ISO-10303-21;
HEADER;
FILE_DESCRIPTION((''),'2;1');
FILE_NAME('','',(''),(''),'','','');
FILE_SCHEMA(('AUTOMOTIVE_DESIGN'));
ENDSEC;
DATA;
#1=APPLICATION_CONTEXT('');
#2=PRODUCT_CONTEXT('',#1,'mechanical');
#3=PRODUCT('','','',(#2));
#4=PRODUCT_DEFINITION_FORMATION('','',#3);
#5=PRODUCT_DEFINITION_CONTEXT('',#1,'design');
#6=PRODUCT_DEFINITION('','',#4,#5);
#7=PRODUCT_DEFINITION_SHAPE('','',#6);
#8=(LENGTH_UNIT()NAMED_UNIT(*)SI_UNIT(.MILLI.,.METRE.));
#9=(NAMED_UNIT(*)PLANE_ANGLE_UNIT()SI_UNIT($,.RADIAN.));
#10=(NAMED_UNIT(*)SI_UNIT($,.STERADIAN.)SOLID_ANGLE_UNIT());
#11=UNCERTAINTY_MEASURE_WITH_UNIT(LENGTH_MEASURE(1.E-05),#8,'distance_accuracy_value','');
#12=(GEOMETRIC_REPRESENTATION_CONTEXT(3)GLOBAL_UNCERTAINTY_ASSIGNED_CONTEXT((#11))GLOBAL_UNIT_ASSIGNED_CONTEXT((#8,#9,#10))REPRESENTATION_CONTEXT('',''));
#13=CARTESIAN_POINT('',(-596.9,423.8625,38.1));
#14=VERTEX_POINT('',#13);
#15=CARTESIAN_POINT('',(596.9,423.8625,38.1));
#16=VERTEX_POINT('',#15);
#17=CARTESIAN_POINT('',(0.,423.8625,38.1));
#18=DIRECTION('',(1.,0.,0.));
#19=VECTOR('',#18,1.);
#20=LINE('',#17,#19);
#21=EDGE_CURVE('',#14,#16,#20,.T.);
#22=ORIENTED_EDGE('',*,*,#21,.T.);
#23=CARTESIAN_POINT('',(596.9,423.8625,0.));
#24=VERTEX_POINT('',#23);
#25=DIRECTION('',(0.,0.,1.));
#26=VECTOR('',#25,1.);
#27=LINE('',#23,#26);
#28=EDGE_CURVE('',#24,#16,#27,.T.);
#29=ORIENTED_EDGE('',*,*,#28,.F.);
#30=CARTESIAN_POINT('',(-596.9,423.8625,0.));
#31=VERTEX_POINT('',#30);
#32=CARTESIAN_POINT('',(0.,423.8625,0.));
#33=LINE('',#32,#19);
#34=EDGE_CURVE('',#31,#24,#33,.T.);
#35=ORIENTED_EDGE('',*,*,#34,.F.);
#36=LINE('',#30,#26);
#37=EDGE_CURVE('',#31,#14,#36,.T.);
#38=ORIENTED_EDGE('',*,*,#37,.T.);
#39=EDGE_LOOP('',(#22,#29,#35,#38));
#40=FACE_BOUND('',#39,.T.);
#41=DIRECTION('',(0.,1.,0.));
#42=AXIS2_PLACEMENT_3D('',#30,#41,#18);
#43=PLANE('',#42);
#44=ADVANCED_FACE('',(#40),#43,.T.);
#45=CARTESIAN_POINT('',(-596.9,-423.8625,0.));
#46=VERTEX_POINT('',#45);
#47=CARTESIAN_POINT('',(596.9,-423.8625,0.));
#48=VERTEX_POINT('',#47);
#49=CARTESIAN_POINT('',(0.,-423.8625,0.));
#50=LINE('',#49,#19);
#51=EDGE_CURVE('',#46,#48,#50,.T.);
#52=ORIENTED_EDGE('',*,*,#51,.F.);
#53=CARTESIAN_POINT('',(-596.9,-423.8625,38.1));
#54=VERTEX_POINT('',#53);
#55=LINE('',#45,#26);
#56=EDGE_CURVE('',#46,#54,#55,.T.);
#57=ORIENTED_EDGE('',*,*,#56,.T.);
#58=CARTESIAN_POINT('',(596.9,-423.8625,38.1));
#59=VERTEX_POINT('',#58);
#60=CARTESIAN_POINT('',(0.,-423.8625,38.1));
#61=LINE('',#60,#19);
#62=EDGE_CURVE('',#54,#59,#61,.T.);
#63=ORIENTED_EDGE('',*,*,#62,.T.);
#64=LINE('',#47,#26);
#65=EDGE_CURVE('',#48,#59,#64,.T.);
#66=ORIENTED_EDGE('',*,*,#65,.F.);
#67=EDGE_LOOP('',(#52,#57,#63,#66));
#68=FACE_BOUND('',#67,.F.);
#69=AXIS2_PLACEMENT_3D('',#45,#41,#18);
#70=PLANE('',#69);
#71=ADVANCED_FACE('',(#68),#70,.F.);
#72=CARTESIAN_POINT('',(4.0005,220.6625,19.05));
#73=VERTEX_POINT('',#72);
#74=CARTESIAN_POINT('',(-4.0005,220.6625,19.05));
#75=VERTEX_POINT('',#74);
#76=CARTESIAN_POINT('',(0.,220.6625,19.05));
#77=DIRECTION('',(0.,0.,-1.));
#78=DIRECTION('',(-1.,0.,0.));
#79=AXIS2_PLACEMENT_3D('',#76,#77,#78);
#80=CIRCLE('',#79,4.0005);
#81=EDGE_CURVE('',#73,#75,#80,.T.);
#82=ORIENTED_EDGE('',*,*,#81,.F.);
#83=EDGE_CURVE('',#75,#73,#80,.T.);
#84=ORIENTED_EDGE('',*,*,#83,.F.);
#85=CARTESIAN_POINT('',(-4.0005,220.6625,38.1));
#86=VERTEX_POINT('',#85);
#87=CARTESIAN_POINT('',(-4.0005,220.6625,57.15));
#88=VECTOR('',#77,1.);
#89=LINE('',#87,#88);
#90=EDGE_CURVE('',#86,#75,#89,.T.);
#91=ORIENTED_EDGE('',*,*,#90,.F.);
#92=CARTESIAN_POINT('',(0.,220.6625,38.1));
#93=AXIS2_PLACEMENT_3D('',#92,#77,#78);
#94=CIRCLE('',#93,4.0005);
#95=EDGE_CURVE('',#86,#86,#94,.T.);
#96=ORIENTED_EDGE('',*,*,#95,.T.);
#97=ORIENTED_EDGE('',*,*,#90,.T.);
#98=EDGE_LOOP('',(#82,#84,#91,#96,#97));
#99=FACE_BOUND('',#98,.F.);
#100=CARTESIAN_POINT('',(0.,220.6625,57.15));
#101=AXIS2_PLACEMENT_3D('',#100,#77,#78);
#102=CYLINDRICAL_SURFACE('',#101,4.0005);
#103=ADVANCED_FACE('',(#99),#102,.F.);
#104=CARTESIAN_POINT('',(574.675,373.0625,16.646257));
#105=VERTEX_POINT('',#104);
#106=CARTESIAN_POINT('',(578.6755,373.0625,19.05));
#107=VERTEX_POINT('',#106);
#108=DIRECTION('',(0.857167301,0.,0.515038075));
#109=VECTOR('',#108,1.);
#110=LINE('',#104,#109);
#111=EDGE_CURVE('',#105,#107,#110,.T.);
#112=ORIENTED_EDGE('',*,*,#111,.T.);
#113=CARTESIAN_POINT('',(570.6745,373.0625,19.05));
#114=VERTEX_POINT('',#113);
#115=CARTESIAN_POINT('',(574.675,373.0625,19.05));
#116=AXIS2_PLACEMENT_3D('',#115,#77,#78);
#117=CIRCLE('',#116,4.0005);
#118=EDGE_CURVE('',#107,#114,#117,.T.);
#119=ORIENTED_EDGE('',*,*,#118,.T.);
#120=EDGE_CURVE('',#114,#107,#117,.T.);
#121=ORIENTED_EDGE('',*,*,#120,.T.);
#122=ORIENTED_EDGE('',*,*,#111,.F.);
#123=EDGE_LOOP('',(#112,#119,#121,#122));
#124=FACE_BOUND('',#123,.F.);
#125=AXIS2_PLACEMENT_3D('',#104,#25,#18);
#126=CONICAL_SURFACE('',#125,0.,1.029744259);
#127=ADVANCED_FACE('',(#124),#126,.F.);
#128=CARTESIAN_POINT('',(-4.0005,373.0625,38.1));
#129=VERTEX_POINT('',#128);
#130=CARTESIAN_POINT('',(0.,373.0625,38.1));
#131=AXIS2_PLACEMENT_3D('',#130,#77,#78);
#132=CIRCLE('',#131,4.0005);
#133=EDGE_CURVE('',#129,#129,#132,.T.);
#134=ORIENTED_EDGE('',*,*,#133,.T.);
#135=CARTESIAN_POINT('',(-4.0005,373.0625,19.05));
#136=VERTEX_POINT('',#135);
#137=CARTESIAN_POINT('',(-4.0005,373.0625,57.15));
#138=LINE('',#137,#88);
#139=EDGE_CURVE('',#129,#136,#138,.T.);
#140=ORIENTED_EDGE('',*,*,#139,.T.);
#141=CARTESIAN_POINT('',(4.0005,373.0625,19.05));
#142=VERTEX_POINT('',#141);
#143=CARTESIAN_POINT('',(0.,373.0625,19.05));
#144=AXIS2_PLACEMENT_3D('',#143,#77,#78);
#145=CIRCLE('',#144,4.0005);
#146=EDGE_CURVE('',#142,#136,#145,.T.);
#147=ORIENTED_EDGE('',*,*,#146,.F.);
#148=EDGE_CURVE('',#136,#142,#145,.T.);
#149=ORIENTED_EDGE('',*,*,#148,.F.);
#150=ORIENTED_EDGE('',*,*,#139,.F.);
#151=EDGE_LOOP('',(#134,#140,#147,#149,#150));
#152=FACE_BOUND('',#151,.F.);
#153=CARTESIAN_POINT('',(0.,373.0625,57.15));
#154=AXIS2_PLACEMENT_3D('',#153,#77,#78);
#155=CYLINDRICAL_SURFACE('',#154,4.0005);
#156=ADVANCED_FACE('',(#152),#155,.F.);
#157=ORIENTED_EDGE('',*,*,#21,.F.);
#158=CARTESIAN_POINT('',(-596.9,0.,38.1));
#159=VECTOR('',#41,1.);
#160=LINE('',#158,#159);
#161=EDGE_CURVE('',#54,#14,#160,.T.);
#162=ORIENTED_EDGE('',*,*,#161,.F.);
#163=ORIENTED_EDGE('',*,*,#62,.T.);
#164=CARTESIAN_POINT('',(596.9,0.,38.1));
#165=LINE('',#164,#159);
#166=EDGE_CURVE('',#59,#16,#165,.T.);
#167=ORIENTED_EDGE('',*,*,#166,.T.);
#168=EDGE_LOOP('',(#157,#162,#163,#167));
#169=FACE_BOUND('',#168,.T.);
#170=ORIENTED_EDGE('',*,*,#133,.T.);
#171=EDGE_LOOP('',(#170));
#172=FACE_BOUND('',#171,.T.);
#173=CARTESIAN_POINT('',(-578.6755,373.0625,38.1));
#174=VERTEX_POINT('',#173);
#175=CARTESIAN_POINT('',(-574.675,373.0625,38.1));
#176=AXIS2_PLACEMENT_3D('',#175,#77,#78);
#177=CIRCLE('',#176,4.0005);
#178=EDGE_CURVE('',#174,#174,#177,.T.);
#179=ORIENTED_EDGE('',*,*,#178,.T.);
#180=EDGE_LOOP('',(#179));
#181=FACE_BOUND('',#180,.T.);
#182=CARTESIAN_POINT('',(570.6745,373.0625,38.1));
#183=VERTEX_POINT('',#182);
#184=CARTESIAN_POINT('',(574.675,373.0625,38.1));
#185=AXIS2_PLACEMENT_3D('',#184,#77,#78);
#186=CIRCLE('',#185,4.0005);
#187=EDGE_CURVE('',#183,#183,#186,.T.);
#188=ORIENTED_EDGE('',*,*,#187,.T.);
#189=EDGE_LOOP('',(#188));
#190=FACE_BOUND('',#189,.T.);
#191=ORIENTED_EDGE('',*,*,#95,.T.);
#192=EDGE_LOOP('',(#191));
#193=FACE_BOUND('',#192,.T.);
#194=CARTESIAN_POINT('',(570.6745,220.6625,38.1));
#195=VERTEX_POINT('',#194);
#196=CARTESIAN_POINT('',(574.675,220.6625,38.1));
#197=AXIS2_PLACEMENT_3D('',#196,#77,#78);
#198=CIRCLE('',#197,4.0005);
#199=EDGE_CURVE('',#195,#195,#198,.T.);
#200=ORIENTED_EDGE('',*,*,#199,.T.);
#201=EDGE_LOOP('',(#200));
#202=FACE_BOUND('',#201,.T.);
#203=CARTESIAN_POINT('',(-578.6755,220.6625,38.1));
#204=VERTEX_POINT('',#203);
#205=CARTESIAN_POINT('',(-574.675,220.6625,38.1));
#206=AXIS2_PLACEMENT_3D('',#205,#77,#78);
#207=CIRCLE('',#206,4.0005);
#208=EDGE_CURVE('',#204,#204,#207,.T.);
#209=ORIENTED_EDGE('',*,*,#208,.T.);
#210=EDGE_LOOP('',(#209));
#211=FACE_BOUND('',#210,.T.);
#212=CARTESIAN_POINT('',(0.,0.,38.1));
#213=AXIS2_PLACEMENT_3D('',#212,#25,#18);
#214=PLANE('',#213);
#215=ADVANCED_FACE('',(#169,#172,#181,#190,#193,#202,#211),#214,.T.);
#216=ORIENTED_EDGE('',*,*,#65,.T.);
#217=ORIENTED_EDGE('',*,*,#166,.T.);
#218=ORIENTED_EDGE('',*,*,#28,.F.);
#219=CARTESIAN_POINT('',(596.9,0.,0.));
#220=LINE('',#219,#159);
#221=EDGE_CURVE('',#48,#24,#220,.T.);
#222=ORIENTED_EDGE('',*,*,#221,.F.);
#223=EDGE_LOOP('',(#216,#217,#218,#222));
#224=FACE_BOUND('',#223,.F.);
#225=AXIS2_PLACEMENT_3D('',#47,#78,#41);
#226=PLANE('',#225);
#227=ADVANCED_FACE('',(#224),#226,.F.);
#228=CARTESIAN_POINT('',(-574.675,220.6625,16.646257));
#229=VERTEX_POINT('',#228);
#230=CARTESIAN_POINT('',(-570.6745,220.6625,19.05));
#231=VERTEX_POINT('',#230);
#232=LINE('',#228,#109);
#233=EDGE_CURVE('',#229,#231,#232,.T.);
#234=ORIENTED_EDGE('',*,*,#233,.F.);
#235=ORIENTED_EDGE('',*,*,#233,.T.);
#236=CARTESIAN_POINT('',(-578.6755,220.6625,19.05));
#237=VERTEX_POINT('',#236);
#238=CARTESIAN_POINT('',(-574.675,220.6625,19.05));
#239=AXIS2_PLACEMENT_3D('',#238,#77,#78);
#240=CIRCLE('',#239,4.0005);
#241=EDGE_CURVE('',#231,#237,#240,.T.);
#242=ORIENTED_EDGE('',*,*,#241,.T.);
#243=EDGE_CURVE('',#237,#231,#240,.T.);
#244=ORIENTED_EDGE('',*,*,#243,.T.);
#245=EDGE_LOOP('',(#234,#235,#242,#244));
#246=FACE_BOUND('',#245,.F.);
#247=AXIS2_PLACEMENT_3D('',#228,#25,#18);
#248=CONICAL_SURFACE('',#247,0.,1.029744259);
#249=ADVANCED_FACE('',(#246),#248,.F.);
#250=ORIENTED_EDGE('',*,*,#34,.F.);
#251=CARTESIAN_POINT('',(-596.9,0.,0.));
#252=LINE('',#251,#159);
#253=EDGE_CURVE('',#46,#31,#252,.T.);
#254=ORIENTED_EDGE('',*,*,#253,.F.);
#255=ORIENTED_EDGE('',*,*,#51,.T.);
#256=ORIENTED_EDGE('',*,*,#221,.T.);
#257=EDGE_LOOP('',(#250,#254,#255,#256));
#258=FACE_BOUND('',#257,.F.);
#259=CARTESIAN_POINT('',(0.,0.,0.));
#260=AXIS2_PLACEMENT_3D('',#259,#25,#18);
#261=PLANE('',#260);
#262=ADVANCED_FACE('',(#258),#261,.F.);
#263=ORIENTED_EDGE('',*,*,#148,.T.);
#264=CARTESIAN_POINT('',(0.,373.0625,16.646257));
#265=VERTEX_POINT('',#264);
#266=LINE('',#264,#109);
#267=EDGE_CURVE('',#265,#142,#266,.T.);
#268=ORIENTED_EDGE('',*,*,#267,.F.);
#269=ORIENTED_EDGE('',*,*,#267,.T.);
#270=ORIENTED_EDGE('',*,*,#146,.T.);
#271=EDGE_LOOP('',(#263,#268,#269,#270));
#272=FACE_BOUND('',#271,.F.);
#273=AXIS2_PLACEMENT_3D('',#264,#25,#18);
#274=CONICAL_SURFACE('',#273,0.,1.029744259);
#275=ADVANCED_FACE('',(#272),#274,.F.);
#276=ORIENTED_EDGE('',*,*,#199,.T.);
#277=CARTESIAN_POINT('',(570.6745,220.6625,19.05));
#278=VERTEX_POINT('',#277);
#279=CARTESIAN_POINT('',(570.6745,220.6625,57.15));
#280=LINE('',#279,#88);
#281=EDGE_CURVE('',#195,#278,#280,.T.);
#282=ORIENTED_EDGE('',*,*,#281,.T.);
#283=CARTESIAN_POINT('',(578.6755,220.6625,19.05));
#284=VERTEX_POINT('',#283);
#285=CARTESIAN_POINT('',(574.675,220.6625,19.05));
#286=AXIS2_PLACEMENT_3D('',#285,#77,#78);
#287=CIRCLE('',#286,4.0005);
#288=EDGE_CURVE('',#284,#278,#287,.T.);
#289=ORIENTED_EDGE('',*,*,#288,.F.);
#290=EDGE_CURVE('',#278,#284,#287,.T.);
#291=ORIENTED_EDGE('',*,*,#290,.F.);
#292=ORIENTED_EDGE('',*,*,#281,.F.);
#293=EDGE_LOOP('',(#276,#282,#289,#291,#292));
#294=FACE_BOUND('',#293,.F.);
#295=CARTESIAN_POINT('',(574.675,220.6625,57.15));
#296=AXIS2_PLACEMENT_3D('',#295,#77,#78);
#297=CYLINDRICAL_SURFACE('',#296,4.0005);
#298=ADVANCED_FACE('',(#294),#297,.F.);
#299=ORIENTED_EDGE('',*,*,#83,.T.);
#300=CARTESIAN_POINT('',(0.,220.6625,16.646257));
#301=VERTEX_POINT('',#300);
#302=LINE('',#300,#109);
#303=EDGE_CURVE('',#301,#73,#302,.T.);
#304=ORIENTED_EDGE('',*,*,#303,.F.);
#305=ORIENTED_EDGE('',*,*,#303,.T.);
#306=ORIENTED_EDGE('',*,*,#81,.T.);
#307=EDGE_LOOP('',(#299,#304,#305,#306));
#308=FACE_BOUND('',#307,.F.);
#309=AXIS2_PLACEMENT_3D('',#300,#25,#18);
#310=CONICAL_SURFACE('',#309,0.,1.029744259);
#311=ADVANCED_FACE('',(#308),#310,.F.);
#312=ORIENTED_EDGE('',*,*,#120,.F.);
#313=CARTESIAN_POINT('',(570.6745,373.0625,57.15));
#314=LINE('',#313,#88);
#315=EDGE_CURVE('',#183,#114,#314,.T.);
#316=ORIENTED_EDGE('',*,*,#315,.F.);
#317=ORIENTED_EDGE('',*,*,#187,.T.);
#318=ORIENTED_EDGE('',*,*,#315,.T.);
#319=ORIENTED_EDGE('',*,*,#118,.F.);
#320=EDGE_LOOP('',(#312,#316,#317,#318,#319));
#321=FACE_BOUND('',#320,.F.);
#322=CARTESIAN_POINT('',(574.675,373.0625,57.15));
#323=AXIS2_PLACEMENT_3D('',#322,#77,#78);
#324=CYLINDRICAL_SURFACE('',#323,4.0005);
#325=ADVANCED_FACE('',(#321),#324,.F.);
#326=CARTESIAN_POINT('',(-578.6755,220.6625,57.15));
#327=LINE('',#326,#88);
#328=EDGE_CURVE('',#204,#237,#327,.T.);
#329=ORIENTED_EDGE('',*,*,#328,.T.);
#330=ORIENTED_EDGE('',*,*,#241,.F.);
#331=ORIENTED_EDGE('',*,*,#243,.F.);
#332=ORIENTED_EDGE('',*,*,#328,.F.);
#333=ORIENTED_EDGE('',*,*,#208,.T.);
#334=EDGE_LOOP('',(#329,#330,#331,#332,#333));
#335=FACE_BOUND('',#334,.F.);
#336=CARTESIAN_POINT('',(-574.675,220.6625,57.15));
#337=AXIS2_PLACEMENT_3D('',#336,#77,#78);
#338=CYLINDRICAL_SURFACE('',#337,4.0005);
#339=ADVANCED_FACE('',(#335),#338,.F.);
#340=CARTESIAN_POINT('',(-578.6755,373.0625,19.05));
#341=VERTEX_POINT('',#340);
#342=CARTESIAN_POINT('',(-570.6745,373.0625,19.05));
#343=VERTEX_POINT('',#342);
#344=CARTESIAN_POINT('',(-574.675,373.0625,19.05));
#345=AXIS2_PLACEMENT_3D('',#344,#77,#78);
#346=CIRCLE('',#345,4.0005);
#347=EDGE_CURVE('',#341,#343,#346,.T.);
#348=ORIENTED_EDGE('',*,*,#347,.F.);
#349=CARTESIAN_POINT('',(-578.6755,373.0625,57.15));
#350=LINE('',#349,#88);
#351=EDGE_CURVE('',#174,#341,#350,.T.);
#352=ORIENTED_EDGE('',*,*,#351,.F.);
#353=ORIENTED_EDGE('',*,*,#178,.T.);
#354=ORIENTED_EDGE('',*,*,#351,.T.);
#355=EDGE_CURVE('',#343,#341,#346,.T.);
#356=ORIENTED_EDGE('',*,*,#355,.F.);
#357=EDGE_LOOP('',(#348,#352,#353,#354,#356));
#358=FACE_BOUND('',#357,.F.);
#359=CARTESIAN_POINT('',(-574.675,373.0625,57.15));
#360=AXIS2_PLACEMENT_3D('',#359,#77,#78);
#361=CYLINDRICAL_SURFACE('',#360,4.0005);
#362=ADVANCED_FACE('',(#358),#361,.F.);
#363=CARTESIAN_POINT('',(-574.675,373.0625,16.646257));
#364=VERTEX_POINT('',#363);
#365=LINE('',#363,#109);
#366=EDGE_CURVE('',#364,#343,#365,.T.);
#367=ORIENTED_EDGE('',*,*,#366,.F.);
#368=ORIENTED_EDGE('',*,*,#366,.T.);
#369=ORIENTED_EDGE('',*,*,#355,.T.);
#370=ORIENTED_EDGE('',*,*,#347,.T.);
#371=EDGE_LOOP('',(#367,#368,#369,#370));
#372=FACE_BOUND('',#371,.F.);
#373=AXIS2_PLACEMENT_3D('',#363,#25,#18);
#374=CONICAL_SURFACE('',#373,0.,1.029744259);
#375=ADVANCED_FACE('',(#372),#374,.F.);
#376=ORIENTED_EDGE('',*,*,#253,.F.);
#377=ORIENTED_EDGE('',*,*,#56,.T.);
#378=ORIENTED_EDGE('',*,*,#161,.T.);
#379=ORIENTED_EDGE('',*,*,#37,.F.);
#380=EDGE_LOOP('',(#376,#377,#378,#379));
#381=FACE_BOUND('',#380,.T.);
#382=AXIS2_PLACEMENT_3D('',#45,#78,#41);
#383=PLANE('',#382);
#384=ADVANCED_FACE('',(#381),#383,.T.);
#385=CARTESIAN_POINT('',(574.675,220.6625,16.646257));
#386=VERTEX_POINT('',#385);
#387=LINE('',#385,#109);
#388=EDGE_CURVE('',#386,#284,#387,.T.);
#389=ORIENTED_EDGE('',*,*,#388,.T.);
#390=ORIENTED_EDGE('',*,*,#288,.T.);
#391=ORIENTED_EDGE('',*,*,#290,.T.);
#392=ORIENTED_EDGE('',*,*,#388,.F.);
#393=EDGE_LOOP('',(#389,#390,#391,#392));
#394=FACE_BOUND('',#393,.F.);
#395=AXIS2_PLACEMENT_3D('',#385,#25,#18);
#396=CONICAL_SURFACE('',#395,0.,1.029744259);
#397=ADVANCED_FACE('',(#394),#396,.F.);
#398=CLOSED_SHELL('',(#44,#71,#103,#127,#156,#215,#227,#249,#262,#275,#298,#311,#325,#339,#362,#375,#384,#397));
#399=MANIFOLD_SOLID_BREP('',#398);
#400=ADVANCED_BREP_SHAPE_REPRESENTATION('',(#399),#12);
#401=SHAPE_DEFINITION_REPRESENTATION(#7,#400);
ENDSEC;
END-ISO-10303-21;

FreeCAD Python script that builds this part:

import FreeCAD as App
import Part
import Sketcher

V = App.Vector
Q = App.Units.Quantity

doc = App.newDocument("Part")
params = doc.addObject("Spreadsheet::Sheet", "Params")
for row, (alias, value) in enumerate([
    ("sketch1_width", "47 in"),
    ("sketch1_height", "33.375 in"),
    ("pad1_length", "1.5 in"),
    ("sketch2_diameter", "0.315 in"),
    ("hole_diameter", "0.315 in"),
    ("hole_depth", "0.75 in"),
], start=1):
    params.set(f"A{row}", alias)
    params.set(f"B{row}", "=" + value)
    params.setAlias(f"B{row}", alias)

body = doc.addObject("PartDesign::Body", "Body")

# Sketch on XY plane
sketch1 = body.newObject("Sketcher::SketchObject", "Sketch")
sketch1.AttachmentSupport = (doc.getObject("XY_Plane"), [""])
sketch1.MapMode = "FlatFace"
sketch1.addGeometry(Part.LineSegment(V(-597, 424, 0), V(-597, -424, 0)), False)
sketch1.addGeometry(Part.LineSegment(V(-597, -424, 0), V(597, -424, 0)), False)
sketch1.addGeometry(Part.LineSegment(V(597, -424, 0), V(597, 424, 0)), False)
sketch1.addGeometry(Part.LineSegment(V(597, 424, 0), V(-597, 424, 0)), False)
sketch1.addConstraint(Sketcher.Constraint("Coincident", 0, 2, 1, 1))
sketch1.addConstraint(Sketcher.Constraint("Coincident", 1, 2, 2, 1))
sketch1.addConstraint(Sketcher.Constraint("Coincident", 2, 2, 3, 1))
sketch1.addConstraint(Sketcher.Constraint("Coincident", 3, 2, 0, 1))
sketch1.addConstraint(Sketcher.Constraint("Vertical", 0))
sketch1.addConstraint(Sketcher.Constraint("Horizontal", 1))
sketch1.addConstraint(Sketcher.Constraint("Vertical", 2))
sketch1.addConstraint(Sketcher.Constraint("Horizontal", 3))
sketch1.addConstraint(Sketcher.Constraint("Symmetric", 0, 2, 2, 2, -1, 1))
sketch1.addConstraint(Sketcher.Constraint("DistanceX", 1, 1, 1, 2, Q("47 in")))
sketch1.addConstraint(Sketcher.Constraint("DistanceY", 0, 2, 0, 1, Q("33.375 in")))
sketch1.setExpression("Constraints[9]", "Params.sketch1_width")
sketch1.setExpression("Constraints[10]", "Params.sketch1_height")
pad1 = body.newObject("PartDesign::Pad", "Pad")
pad1.Profile = sketch1
pad1.setExpression("Length", "Params.pad1_length")

# Sketch on XY plane
sketch2 = body.newObject("Sketcher::SketchObject", "Sketch001")
sketch2.AttachmentSupport = (doc.getObject("XY_Plane"), [""])
sketch2.MapMode = "FlatFace"
sketch2.AttachmentOffset = App.Placement(V(0, 0, 1.5 * 25.4), App.Rotation())
sketch2.addGeometry(Part.Circle(V(-574.7, 373.1, 0), V(0, 0, 1), 4), False)
sketch2.addGeometry(Part.Circle(V(-574.7, 220.7, 0), V(0, 0, 1), 4), False)
sketch2.addGeometry(Part.Circle(V(0, 373.1, 0), V(0, 0, 1), 4), False)
sketch2.addGeometry(Part.Circle(V(0, 220.7, 0), V(0, 0, 1), 4), False)
sketch2.addGeometry(Part.Circle(V(574.7, 373.1, 0), V(0, 0, 1), 4), False)
sketch2.addGeometry(Part.Circle(V(574.7, 220.7, 0), V(0, 0, 1), 4), False)
sketch2.addConstraint(Sketcher.Constraint("Equal", 0, 1))
sketch2.addConstraint(Sketcher.Constraint("Equal", 1, 2))
sketch2.addConstraint(Sketcher.Constraint("Equal", 2, 3))
sketch2.addConstraint(Sketcher.Constraint("Equal", 3, 4))
sketch2.addConstraint(Sketcher.Constraint("Equal", 4, 5))
sketch2.addConstraint(Sketcher.Constraint("Symmetric", 0, 3, 4, 3, -2))
sketch2.addConstraint(Sketcher.Constraint("Symmetric", 1, 3, 5, 3, -2))
sketch2.addConstraint(Sketcher.Constraint("PointOnObject", 2, 3, -2))
sketch2.addConstraint(Sketcher.Constraint("PointOnObject", 3, 3, -2))
sketch2.addConstraint(Sketcher.Constraint("Horizontal", 0, 3, 2, 3))
sketch2.addConstraint(Sketcher.Constraint("Horizontal", 1, 3, 3, 3))
sketch2.addConstraint(Sketcher.Constraint("Vertical", 0, 3, 1, 3))
sketch2.addConstraint(Sketcher.Constraint("Diameter", 0, Q("0.315 in")))
sketch2.addConstraint(Sketcher.Constraint("DistanceY", 1, 3, 0, 3, Q("6 in")))
sketch2.addConstraint(Sketcher.Constraint("DistanceX", 0, 3, 4, 3, Q("45.25 in")))
sketch2.addConstraint(Sketcher.Constraint("DistanceY", -1, 1, 0, 3, Q("14.6875 in")))
sketch2.setExpression("Constraints[12]", "Params.sketch2_diameter")
doc.recompute()
hole = body.newObject("PartDesign::Hole", "Hole")
hole.Profile = sketch2
hole.ThreadType = "None"
hole.setExpression("Diameter", "Params.hole_diameter")
hole.DepthType = "Dimension"
hole.setExpression("Depth", "Params.hole_depth")
hole.DrillPoint = "Angled"
hole.DrillPointAngle = 118

doc.recompute()
